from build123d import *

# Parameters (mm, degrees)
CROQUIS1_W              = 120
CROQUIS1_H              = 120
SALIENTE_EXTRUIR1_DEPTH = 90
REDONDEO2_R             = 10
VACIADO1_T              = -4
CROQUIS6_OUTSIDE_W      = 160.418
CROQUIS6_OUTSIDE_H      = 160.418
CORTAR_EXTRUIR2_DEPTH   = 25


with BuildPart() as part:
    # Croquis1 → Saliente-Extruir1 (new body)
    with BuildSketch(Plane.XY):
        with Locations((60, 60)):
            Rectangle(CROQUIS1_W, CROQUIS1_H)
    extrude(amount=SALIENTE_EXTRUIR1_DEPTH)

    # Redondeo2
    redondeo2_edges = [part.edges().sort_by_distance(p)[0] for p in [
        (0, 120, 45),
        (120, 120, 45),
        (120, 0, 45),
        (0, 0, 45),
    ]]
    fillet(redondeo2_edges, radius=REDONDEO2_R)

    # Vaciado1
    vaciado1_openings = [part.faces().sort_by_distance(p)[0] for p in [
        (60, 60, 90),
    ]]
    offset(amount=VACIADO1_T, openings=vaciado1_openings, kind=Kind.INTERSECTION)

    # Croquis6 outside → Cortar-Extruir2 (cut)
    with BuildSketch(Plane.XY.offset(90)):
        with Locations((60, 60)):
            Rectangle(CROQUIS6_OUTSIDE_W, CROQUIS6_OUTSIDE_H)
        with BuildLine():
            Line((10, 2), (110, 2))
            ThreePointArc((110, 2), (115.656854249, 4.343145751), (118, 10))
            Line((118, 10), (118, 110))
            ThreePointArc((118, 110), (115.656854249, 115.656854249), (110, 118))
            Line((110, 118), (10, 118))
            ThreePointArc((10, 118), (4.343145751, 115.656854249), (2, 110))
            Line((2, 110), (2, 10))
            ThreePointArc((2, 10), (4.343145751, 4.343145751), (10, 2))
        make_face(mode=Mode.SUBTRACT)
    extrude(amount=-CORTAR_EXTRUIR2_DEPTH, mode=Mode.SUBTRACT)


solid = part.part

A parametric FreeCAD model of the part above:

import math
import FreeCAD as App
import Part
import Sketcher

V = App.Vector


def edges_at(feature, points):
    """Names of the edges that pass closest to the given points."""
    edges = feature.Shape.Edges
    near = lambda p: min(range(len(edges)), key=lambda i: edges[i].distToShape(Part.Vertex(*p))[0])
    return sorted({f"Edge{near(p) + 1}" for p in points})


def faces_at(feature, points):
    """Names of the faces that lie closest to the given points."""
    faces = feature.Shape.Faces
    near = lambda p: min(range(len(faces)), key=lambda i: faces[i].distToShape(Part.Vertex(*p))[0])
    return sorted({f"Face{near(p) + 1}" for p in points})

doc = App.newDocument("Part")
body = doc.addObject("PartDesign::Body", "Body")

# Sketch on XY plane
sketch1 = body.newObject("Sketcher::SketchObject", "Sketch")
sketch1.AttachmentSupport = (doc.getObject("XY_Plane"), [""])
sketch1.MapMode = "FlatFace"
sketch1.addGeometry(Part.LineSegment(V(0, 120, 0), V(0, 0, 0)), False)
sketch1.addGeometry(Part.LineSegment(V(0, 0, 0), V(120, 0, 0)), False)
sketch1.addGeometry(Part.LineSegment(V(120, 0, 0), V(120, 120, 0)), False)
sketch1.addGeometry(Part.LineSegment(V(120, 120, 0), V(0, 120, 0)), False)
sketch1.addConstraint(Sketcher.Constraint("Coincident", 0, 2, 1, 1))
sketch1.addConstraint(Sketcher.Constraint("Coincident", 1, 2, 2, 1))
sketch1.addConstraint(Sketcher.Constraint("Coincident", 2, 2, 3, 1))
sketch1.addConstraint(Sketcher.Constraint("Coincident", 3, 2, 0, 1))
sketch1.addConstraint(Sketcher.Constraint("Vertical", 0))
sketch1.addConstraint(Sketcher.Constraint("Horizontal", 1))
sketch1.addConstraint(Sketcher.Constraint("Vertical", 2))
sketch1.addConstraint(Sketcher.Constraint("Horizontal", 3))
sketch1.addConstraint(Sketcher.Constraint("Coincident", 0, 2, -1, 1))
sketch1.addConstraint(Sketcher.Constraint("Equal", 3, 0))
sketch1.addConstraint(Sketcher.Constraint("DistanceX", 1, 1, 1, 2, 120.0))
pad1 = body.newObject("PartDesign::Pad", "Pad")
pad1.Profile = sketch1
pad1.Length = 90
doc.recompute()

fillet = body.newObject("PartDesign::Fillet", "Fillet")
fillet.Base = (pad1, edges_at(pad1, [
    (0, 120, 45),
    (120, 120, 45),
    (120, 0, 45),
    (0, 0, 45),
]))
fillet.Radius = 10
doc.recompute()

thickness = body.newObject("PartDesign::Thickness", "Thickness")
thickness.Base = (fillet, faces_at(fillet, [(60, 60, 90)]))
thickness.Value = 4
thickness.Reversed = True
thickness.Join = "Intersection"

# Sketch on XY plane
sketch2 = body.newObject("Sketcher::SketchObject", "Sketch001")
sketch2.AttachmentSupport = (doc.getObject("XY_Plane"), [""])
sketch2.MapMode = "FlatFace"
sketch2.AttachmentOffset = App.Placement(V(0, 0, 90), App.Rotation())
sketch2.addGeometry(Part.LineSegment(V(-20, 140, 0), V(-20, -20, 0)), False)
sketch2.addGeometry(Part.LineSegment(V(-20, -20, 0), V(140, -20, 0)), False)
sketch2.addGeometry(Part.LineSegment(V(140, -20, 0), V(140, 140, 0)), False)
sketch2.addGeometry(Part.LineSegment(V(140, 140, 0), V(-20, 140, 0)), False)
sketch2.addGeometry(Part.LineSegment(V(110, 2, 0), V(10, 2, 0)), False)
sketch2.addGeometry(Part.ArcOfCircle(Part.Circle(V(10, 10, 0), V(0, 0, 1), 8), math.radians(-180), math.radians(-90)), False)
sketch2.addGeometry(Part.LineSegment(V(2, 10, 0), V(2, 110, 0)), False)
sketch2.addGeometry(Part.ArcOfCircle(Part.Circle(V(10, 110, 0), V(0, 0, 1), 8), math.radians(90), math.radians(180)), False)
sketch2.addGeometry(Part.LineSegment(V(10, 118, 0), V(110, 118, 0)), False)
sketch2.addGeometry(Part.ArcOfCircle(Part.Circle(V(110, 110, 0), V(0, 0, 1), 8), math.radians(0), math.radians(90)), False)
sketch2.addGeometry(Part.LineSegment(V(118, 110, 0), V(118, 10, 0)), False)
sketch2.addGeometry(Part.ArcOfCircle(Part.Circle(V(110, 10, 0), V(0, 0, 1), 8), math.radians(-90), math.radians(0)), False)
sketch2.addConstraint(Sketcher.Constraint("Coincident", 0, 2, 1, 1))
sketch2.addConstraint(Sketcher.Constraint("Coincident", 1, 2, 2, 1))
sketch2.addConstraint(Sketcher.Constraint("Coincident", 2, 2, 3, 1))
sketch2.addConstraint(Sketcher.Constraint("Coincident", 3, 2, 0, 1))
sketch2.addConstraint(Sketcher.Constraint("Tangent", 4, 2, 5, 2))
sketch2.addConstraint(Sketcher.Constraint("Tangent", 5, 1, 6, 1))
sketch2.addConstraint(Sketcher.Constraint("Tangent", 6, 2, 7, 2))
sketch2.addConstraint(Sketcher.Constraint("Tangent", 7, 1, 8, 1))
sketch2.addConstraint(Sketcher.Constraint("Tangent", 8, 2, 9, 2))
sketch2.addConstraint(Sketcher.Constraint("Tangent", 9, 1, 10, 1))
sketch2.addConstraint(Sketcher.Constraint("Tangent", 10, 2, 11, 2))
sketch2.addConstraint(Sketcher.Constraint("Tangent", 11, 1, 4, 1))
sketch2.addConstraint(Sketcher.Constraint("Vertical", 0))
sketch2.addConstraint(Sketcher.Constraint("Horizontal", 1))
sketch2.addConstraint(Sketcher.Constraint("Vertical", 2))
sketch2.addConstraint(Sketcher.Constraint("Horizontal", 3))
sketch2.addConstraint(Sketcher.Constraint("Horizontal", 4))
sketch2.addConstraint(Sketcher.Constraint("Vertical", 6))
sketch2.addConstraint(Sketcher.Constraint("Horizontal", 8))
sketch2.addConstraint(Sketcher.Constraint("Vertical", 10))
sketch2.addConstraint(Sketcher.Constraint("Equal", 5, 7))
sketch2.addConstraint(Sketcher.Constraint("Equal", 7, 9))
sketch2.addConstraint(Sketcher.Constraint("Equal", 9, 11))
sketch2.addConstraint(Sketcher.Constraint("Equal", 3, 0))
sketch2.addConstraint(Sketcher.Constraint("Equal", 8, 6))
sketch2.addConstraint(Sketcher.Constraint("Radius", 5, 8.0))
sketch2.addConstraint(Sketcher.Constraint("DistanceX", 4, 2, 4, 1, 100.0))
sketch2.addConstraint(Sketcher.Constraint("DistanceX", -1, 1, 5, 3, 10.0))
sketch2.addConstraint(Sketcher.Constraint("DistanceY", -1, 1, 5, 3, 10.0))
sketch2.addConstraint(Sketcher.Constraint("DistanceX", 1, 1, 1, 2, 160.418))
sketch2.addConstraint(Sketcher.Constraint("DistanceX", 0, 2, -1, 1, 20.209))
sketch2.addConstraint(Sketcher.Constraint("DistanceY", 0, 2, -1, 1, 20.209))
pocket1 = body.newObject("PartDesign::Pocket", "Pocket")
pocket1.Profile = sketch2
pocket1.Length = 25

doc.recompute()
